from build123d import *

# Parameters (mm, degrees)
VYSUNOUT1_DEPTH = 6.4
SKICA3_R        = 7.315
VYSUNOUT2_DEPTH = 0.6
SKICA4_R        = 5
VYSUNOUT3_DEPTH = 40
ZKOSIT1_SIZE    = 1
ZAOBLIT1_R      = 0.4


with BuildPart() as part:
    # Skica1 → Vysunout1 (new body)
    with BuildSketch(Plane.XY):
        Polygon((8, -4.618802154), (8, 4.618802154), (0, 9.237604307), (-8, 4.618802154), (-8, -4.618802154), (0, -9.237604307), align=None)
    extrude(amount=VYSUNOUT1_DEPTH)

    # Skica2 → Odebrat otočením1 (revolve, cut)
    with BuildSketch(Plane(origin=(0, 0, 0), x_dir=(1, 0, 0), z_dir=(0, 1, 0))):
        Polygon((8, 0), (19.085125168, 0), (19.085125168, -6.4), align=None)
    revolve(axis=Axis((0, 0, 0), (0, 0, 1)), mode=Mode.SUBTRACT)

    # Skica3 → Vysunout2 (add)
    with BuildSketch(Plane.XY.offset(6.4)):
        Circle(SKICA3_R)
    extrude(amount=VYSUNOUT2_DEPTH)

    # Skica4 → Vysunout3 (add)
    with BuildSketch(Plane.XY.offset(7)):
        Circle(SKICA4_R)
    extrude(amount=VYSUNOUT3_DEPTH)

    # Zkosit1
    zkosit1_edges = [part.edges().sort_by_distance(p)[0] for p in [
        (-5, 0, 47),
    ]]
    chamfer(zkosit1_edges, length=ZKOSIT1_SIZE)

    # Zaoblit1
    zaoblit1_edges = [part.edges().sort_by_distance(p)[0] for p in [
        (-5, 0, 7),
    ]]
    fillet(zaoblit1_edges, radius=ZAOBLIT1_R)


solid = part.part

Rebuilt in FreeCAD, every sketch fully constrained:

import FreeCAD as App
import Part
import Sketcher
from FreeCAD import Vector
Q = App.Units.Quantity


def edges_at(feature, points):
    """Names of the edges that pass closest to the given points."""
    edges = feature.Shape.Edges
    near = lambda p: min(range(len(edges)), key=lambda i: edges[i].distToShape(Part.Vertex(*p))[0])
    return sorted({f"Edge{near(p) + 1}" for p in points})

doc = App.newDocument("Part")
body = doc.addObject("PartDesign::Body", "Body")

sketch1 = body.newObject("Sketcher::SketchObject", "Sketch")
sketch1.AttachmentSupport = (doc.getObject("XY_Plane"), [""])
sketch1.MapMode = "FlatFace"
sketch1.addGeometry(Part.LineSegment(Vector(8, -5, 0), Vector(8, 5, 0)), False)
sketch1.addGeometry(Part.LineSegment(Vector(8, 5, 0), Vector(0, 9, 0)), False)
sketch1.addGeometry(Part.LineSegment(Vector(0, 9, 0), Vector(-8, 5, 0)), False)
sketch1.addGeometry(Part.LineSegment(Vector(-8, 5, 0), Vector(-8, -5, 0)), False)
sketch1.addGeometry(Part.LineSegment(Vector(-8, -5, 0), Vector(0, -9, 0)), False)
sketch1.addGeometry(Part.LineSegment(Vector(0, -9, 0), Vector(8, -5, 0)), False)
sketch1.addConstraint(Sketcher.Constraint("Coincident", 0, 2, 1, 1))
sketch1.addConstraint(Sketcher.Constraint("Coincident", 1, 2, 2, 1))
sketch1.addConstraint(Sketcher.Constraint("Coincident", 2, 2, 3, 1))
sketch1.addConstraint(Sketcher.Constraint("Coincident", 3, 2, 4, 1))
sketch1.addConstraint(Sketcher.Constraint("Coincident", 4, 2, 5, 1))
sketch1.addConstraint(Sketcher.Constraint("Coincident", 5, 2, 0, 1))
sketch1.addConstraint(Sketcher.Constraint("Vertical", 0))
sketch1.addConstraint(Sketcher.Constraint("Vertical", 3))
sketch1.addConstraint(Sketcher.Constraint("Symmetric", 0, 2, 3, 2, -1, 1))
sketch1.addConstraint(Sketcher.Constraint("Symmetric", 1, 2, 4, 2, -1, 1))
sketch1.addConstraint(Sketcher.Constraint("PointOnObject", 1, 2, -2))
sketch1.addConstraint(Sketcher.Constraint("Parallel", 2, 5))
sketch1.addConstraint(Sketcher.Constraint("Horizontal", 0, 2, 2, 2))
sketch1.addConstraint(Sketcher.Constraint("Angle", 1, Q("150 deg")))
sketch1.addConstraint(Sketcher.Constraint("DistanceX", -1, 1, 0, 2, Q("8 mm")))
sketch1.addConstraint(Sketcher.Constraint("DistanceY", 0, 1, 0, 2, Q("9.237604 mm")))
pad1 = body.newObject("PartDesign::Pad", "Pad")
pad1.Profile = sketch1
pad1.Length = 6.4

sketch2 = body.newObject("Sketcher::SketchObject", "Sketch001")
sketch2.AttachmentSupport = (doc.getObject("XZ_Plane"), [""])
sketch2.MapMode = "FlatFace"
sketch2.addGeometry(Part.LineSegment(Vector(19, 0, 0), Vector(8, 0, 0)), False)
sketch2.addGeometry(Part.LineSegment(Vector(8, 0, 0), Vector(19, 6, 0)), False)
sketch2.addGeometry(Part.LineSegment(Vector(19, 6, 0), Vector(19, 0, 0)), False)
sketch2.addConstraint(Sketcher.Constraint("Coincident", 0, 2, 1, 1))
sketch2.addConstraint(Sketcher.Constraint("Coincident", 1, 2, 2, 1))
sketch2.addConstraint(Sketcher.Constraint("Coincident", 2, 2, 0, 1))
sketch2.addConstraint(Sketcher.Constraint("Horizontal", 0))
sketch2.addConstraint(Sketcher.Constraint("Vertical", 2))
sketch2.addConstraint(Sketcher.Constraint("PointOnObject", 0, 2, -1))
sketch2.addConstraint(Sketcher.Constraint("Angle", 1, Q("30 deg")))
sketch2.addConstraint(Sketcher.Constraint("DistanceY", 2, 2, 2, 1, Q("6.4 mm")))
sketch2.addConstraint(Sketcher.Constraint("DistanceX", -1, 1, 0, 2, Q("8 mm")))
groove = body.newObject("PartDesign::Groove", "Groove")
groove.Profile = sketch2
groove.ReferenceAxis = (sketch2, ["V_Axis"])
groove.Angle = 360

sketch3 = body.newObject("Sketcher::SketchObject", "Sketch002")
sketch3.AttachmentSupport = (doc.getObject("XY_Plane"), [""])
sketch3.MapMode = "FlatFace"
sketch3.AttachmentOffset = App.Placement(Vector(0, 0, 6.4), App.Rotation())
sketch3.addGeometry(Part.Circle(Vector(0, 0, 0), Vector(0, 0, 1), 7), False)
sketch3.addConstraint(Sketcher.Constraint("Coincident", 0, 3, -1, 1))
sketch3.addConstraint(Sketcher.Constraint("Diameter", 0, Q("14.63 mm")))
pad2 = body.newObject("PartDesign::Pad", "Pad001")
pad2.Profile = sketch3
pad2.Length = 0.6

sketch4 = body.newObject("Sketcher::SketchObject", "Sketch003")
sketch4.AttachmentSupport = (doc.getObject("XY_Plane"), [""])
sketch4.MapMode = "FlatFace"
sketch4.AttachmentOffset = App.Placement(Vector(0, 0, 7), App.Rotation())
sketch4.addGeometry(Part.Circle(Vector(0, 0, 0), Vector(0, 0, 1), 5), False)
sketch4.addConstraint(Sketcher.Constraint("Coincident", 0, 3, -1, 1))
sketch4.addConstraint(Sketcher.Constraint("Diameter", 0, Q("10 mm")))
pad3 = body.newObject("PartDesign::Pad", "Pad002")
pad3.Profile = sketch4
pad3.Length = 40
doc.recompute()

chamfer = body.newObject("PartDesign::Chamfer", "Chamfer")
chamfer.Base = (pad3, edges_at(pad3, [(-5, 0, 47)]))
chamfer.Size = 1
doc.recompute()

fillet = body.newObject("PartDesign::Fillet", "Fillet")
fillet.Base = (chamfer, edges_at(chamfer, [(-5, 0, 7)]))
fillet.Radius = 0.4

doc.recompute()
